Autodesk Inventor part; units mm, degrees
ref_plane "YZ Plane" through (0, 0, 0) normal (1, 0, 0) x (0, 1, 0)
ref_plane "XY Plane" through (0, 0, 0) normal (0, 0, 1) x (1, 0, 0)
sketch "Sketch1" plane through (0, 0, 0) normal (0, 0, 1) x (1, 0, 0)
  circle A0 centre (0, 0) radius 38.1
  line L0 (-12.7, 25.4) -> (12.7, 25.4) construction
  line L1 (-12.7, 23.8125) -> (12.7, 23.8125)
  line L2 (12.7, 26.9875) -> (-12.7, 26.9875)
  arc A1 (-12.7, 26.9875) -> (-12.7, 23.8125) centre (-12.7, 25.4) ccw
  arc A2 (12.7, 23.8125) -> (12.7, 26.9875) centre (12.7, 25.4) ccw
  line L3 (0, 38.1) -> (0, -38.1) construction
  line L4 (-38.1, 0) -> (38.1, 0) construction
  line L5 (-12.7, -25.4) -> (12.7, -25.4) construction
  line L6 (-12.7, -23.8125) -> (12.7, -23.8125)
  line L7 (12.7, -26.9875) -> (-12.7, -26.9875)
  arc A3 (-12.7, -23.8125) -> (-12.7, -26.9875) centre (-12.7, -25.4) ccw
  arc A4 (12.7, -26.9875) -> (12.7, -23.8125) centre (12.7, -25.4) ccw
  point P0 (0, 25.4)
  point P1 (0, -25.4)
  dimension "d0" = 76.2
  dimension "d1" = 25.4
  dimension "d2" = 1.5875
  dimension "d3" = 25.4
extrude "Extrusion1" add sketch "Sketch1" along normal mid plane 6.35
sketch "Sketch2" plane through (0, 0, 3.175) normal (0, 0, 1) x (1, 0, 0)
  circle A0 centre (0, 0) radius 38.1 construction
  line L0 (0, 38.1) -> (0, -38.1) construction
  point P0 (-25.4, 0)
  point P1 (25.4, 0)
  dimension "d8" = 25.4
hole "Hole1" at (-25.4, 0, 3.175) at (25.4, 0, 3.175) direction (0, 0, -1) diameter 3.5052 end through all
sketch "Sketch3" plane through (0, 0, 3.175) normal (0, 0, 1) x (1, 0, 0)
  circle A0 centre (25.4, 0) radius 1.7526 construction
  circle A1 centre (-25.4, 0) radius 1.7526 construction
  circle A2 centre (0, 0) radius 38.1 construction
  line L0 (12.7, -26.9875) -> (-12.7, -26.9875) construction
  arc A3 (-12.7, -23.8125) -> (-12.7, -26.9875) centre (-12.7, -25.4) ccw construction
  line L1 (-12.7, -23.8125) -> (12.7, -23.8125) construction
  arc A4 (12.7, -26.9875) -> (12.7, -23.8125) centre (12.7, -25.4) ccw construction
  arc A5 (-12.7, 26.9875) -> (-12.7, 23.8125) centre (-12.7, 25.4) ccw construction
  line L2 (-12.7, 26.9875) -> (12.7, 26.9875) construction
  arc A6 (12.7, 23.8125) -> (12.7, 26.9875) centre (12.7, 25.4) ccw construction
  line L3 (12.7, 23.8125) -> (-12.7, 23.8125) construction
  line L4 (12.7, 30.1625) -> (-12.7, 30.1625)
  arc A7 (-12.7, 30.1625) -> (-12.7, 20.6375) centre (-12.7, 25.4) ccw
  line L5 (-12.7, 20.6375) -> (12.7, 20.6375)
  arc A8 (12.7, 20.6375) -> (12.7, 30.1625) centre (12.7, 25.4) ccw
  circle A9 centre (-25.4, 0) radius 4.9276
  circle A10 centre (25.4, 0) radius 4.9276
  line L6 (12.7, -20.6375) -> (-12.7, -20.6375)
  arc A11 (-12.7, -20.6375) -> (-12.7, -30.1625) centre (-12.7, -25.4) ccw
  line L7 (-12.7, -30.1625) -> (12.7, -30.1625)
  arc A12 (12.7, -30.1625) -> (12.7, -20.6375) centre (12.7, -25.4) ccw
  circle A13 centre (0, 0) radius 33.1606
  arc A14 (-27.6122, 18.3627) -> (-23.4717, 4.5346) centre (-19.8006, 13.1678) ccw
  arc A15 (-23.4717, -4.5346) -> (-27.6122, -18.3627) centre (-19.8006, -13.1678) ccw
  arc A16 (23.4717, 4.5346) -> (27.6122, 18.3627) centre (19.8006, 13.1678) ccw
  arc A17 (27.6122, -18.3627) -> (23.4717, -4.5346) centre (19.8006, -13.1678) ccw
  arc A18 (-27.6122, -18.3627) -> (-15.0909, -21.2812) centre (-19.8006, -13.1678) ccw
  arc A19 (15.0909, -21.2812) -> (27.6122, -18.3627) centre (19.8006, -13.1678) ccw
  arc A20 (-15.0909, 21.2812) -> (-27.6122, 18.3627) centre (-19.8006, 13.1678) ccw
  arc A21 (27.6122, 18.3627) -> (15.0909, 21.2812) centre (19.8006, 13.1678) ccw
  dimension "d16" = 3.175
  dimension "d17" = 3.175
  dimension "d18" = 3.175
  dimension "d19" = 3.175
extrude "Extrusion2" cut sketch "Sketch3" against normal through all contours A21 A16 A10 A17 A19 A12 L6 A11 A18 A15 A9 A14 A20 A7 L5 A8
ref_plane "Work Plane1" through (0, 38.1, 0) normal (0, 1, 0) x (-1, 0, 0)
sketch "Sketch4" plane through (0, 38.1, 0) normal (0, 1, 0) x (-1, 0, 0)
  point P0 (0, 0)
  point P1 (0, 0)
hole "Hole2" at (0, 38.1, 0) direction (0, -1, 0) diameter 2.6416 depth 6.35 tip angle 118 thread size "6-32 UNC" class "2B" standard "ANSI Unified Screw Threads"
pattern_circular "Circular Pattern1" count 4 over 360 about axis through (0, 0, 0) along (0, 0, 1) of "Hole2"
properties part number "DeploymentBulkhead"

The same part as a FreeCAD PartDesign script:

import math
import FreeCAD as App
import Part
import Sketcher
from FreeCAD import Vector
Q = App.Units.Quantity

doc = App.newDocument("Part")
body = doc.addObject("PartDesign::Body", "Body")

# Sketch on XY plane
sketch1 = body.newObject("Sketcher::SketchObject", "Sketch")
sketch1.AttachmentSupport = (doc.getObject("XY_Plane"), [""])
sketch1.MapMode = "FlatFace"
sketch1.addGeometry([
    Part.Circle(Vector(0, 0, 0), Vector(0, 0, 1), 38.1),  # 0
    Part.ArcOfCircle(Part.Circle(Vector(-12.7, -25.4, 0), Vector(0, 0, 1), 1.6), math.radians(90), math.radians(270)),  # 1
    Part.LineSegment(Vector(-12.7, -23.8, 0), Vector(12.7, -23.8, 0)),  # 2
    Part.ArcOfCircle(Part.Circle(Vector(12.7, -25.4, 0), Vector(0, 0, 1), 1.6), math.radians(-90), math.radians(90)),  # 3
    Part.LineSegment(Vector(12.7, -27, 0), Vector(-12.7, -27, 0)),  # 4
    Part.LineSegment(Vector(12.7, 23.8, 0), Vector(-12.7, 23.8, 0)),  # 5
    Part.ArcOfCircle(Part.Circle(Vector(-12.7, 25.4, 0), Vector(0, 0, 1), 1.6), math.radians(90), math.radians(270)),  # 6
    Part.LineSegment(Vector(-12.7, 27, 0), Vector(12.7, 27, 0)),  # 7
    Part.ArcOfCircle(Part.Circle(Vector(12.7, 25.4, 0), Vector(0, 0, 1), 1.6), math.radians(-90), math.radians(90)),  # 8
], False)
sketch1.addConstraint([
    Sketcher.Constraint("Tangent", 1, 1, 2, 1),
    Sketcher.Constraint("Tangent", 2, 2, 3, 2),
    Sketcher.Constraint("Tangent", 3, 1, 4, 1),
    Sketcher.Constraint("Tangent", 4, 2, 1, 2),
    Sketcher.Constraint("Tangent", 5, 2, 6, 2),
    Sketcher.Constraint("Tangent", 6, 1, 7, 1),
    Sketcher.Constraint("Tangent", 7, 2, 8, 2),
    Sketcher.Constraint("Tangent", 8, 1, 5, 1),
    Sketcher.Constraint("Horizontal", 2),
    Sketcher.Constraint("Horizontal", 4),
    Sketcher.Constraint("Horizontal", 5),
    Sketcher.Constraint("Horizontal", 7),
    Sketcher.Constraint("Coincident", 0, 3, -1, 1),
    Sketcher.Constraint("Equal", 3, 6),
    Sketcher.Constraint("Symmetric", 3, 3, 6, 3, -1, 1),
    Sketcher.Constraint("Vertical", 1, 3, 6, 3),
    Sketcher.Constraint("Vertical", 3, 3, 8, 3),
    Sketcher.Constraint("Diameter", 0, Q("3 in")),
    Sketcher.Constraint("DistanceX", 2, 1, 2, 2, Q("1 in")),
    Sketcher.Constraint("DistanceY", 1, 3, -1, 1, Q("1 in")),
    Sketcher.Constraint("Radius", 1, Q("0.0625 in")),
])
pad1 = body.newObject("PartDesign::Pad", "Pad")
pad1.Profile = sketch1
pad1.Length = Q("0.25 in")
pad1.Midplane = True

# Sketch on XY plane
sketch2 = body.newObject("Sketcher::SketchObject", "Sketch001")
sketch2.AttachmentSupport = (doc.getObject("XY_Plane"), [""])
sketch2.MapMode = "FlatFace"
sketch2.AttachmentOffset = App.Placement(Vector(0, 0, 0.125 * 25.4), App.Rotation())
sketch2.addGeometry([
    Part.Circle(Vector(-25.4, 0, 0), Vector(0, 0, 1), 1.8),
    Part.Circle(Vector(25.4, 0, 0), Vector(0, 0, 1), 1.8),
], False)
sketch2.addConstraint([
    Sketcher.Constraint("Equal", 0, 1),
    Sketcher.Constraint("Symmetric", 0, 3, 1, 3, -1, 1),
    Sketcher.Constraint("PointOnObject", 0, 3, -1),
    Sketcher.Constraint("Diameter", 0, Q("0.138 in")),
    Sketcher.Constraint("DistanceX", 0, 3, -1, 1, Q("1 in")),
])
doc.recompute()
hole = body.newObject("PartDesign::Hole", "Hole")
hole.Profile = sketch2
hole.ThreadType = "None"
hole.Diameter = Q("0.138 in")
hole.DepthType = "ThroughAll"

# Sketch on XY plane
sketch3 = body.newObject("Sketcher::SketchObject", "Sketch002")
sketch3.AttachmentSupport = (doc.getObject("XY_Plane"), [""])
sketch3.MapMode = "FlatFace"
sketch3.AttachmentOffset = App.Placement(Vector(0, 0, 0.125 * 25.4), App.Rotation())
sketch3.addGeometry([
    Part.ArcOfCircle(Part.Circle(Vector(19.8, 13.2, 0), Vector(0, 0, 1), 9.4), math.radians(34), math.radians(120)),  # 0
    Part.ArcOfCircle(Part.Circle(Vector(12.7, 25.4, 0), Vector(0, 0, 1), 4.8), math.radians(-90), math.radians(-60)),  # 1
    Part.LineSegment(Vector(12.7, 20.6, 0), Vector(-12.7, 20.6, 0)),  # 2
    Part.ArcOfCircle(Part.Circle(Vector(-12.7, 25.4, 0), Vector(0, 0, 1), 4.8), math.radians(-120), math.radians(-90)),  # 3
    Part.ArcOfCircle(Part.Circle(Vector(-19.8, 13.2, 0), Vector(0, 0, 1), 9.4), math.radians(60), math.radians(146)),  # 4
    Part.ArcOfCircle(Part.Circle(Vector(-19.8, 13.2, 0), Vector(0, 0, 1), 9.4), math.radians(146), math.radians(247)),  # 5
    Part.ArcOfCircle(Part.Circle(Vector(-25.4, 0, 0), Vector(0, 0, 1), 4.9), math.radians(-67), math.radians(67)),  # 6
    Part.ArcOfCircle(Part.Circle(Vector(-19.8, -13.2, 0), Vector(0, 0, 1), 9.4), math.radians(113), math.radians(214)),  # 7
    Part.ArcOfCircle(Part.Circle(Vector(-19.8, -13.2, 0), Vector(0, 0, 1), 9.4), math.radians(-146), math.radians(-60)),  # 8
    Part.ArcOfCircle(Part.Circle(Vector(-12.7, -25.4, 0), Vector(0, 0, 1), 4.8), math.radians(90), math.radians(120)),  # 9
    Part.LineSegment(Vector(-12.7, -20.6, 0), Vector(12.7, -20.6, 0)),  # 10
    Part.ArcOfCircle(Part.Circle(Vector(12.7, -25.4, 0), Vector(0, 0, 1), 4.8), math.radians(60), math.radians(90)),  # 11
    Part.ArcOfCircle(Part.Circle(Vector(19.8, -13.2, 0), Vector(0, 0, 1), 9.4), math.radians(-120), math.radians(-34)),  # 12
    Part.ArcOfCircle(Part.Circle(Vector(19.8, -13.2, 0), Vector(0, 0, 1), 9.4), math.radians(-34), math.radians(67)),  # 13
    Part.ArcOfCircle(Part.Circle(Vector(25.4, 0, 0), Vector(0, 0, 1), 4.9), math.radians(113), math.radians(247)),  # 14
    Part.ArcOfCircle(Part.Circle(Vector(19.8, 13.2, 0), Vector(0, 0, 1), 9.4), math.radians(-67), math.radians(34)),  # 15
], False)
sketch3.addConstraint([
    Sketcher.Constraint("Tangent", 0, 2, 1, 2),
    Sketcher.Constraint("Tangent", 1, 1, 2, 1),
    Sketcher.Constraint("Tangent", 2, 2, 3, 2),
    Sketcher.Constraint("Tangent", 3, 1, 4, 1),
    Sketcher.Constraint("Tangent", 4, 2, 5, 1),
    Sketcher.Constraint("Tangent", 5, 2, 6, 2),
    Sketcher.Constraint("Tangent", 6, 1, 7, 1),
    Sketcher.Constraint("Tangent", 7, 2, 8, 1),
    Sketcher.Constraint("Tangent", 8, 2, 9, 2),
    Sketcher.Constraint("Tangent", 9, 1, 10, 1),
    Sketcher.Constraint("Tangent", 10, 2, 11, 2),
    Sketcher.Constraint("Tangent", 11, 1, 12, 1),
    Sketcher.Constraint("Tangent", 12, 2, 13, 1),
    Sketcher.Constraint("Tangent", 13, 2, 14, 2),
    Sketcher.Constraint("Tangent", 14, 1, 15, 1),
    Sketcher.Constraint("Tangent", 15, 2, 0, 1),
    Sketcher.Constraint("Horizontal", 2),
    Sketcher.Constraint("Horizontal", 10),
    Sketcher.Constraint("Equal", 1, 3),
    Sketcher.Constraint("Equal", 0, 4),
    Sketcher.Constraint("Equal", 4, 5),
    Sketcher.Constraint("Equal", 5, 7),
    Sketcher.Constraint("Equal", 7, 8),
    Sketcher.Constraint("Equal", 3, 9),
    Sketcher.Constraint("Equal", 9, 11),
    Sketcher.Constraint("Equal", 8, 12),
    Sketcher.Constraint("Equal", 12, 13),
    Sketcher.Constraint("Equal", 6, 14),
    Sketcher.Constraint("Equal", 13, 15),
    Sketcher.Constraint("Symmetric", 0, 3, 7, 3, -1, 1),
    Sketcher.Constraint("Symmetric", 3, 3, 11, 3, -1, 1),
    Sketcher.Constraint("Symmetric", 4, 2, 12, 2, -1, 1),
    Sketcher.Constraint("Symmetric", 0, 3, 4, 3, -2),
    Sketcher.Constraint("Horizontal", 7, 2, 12, 2),
    Sketcher.Constraint("Horizontal", 4, 2, 15, 2),
    Sketcher.Constraint("DistanceX", 2, 2, 2, 1, Q("1 in")),
    Sketcher.Constraint("DistanceY", -1, 1, 1, 3, Q("1 in")),
    Sketcher.Constraint("DistanceX", 6, 3, -1, 1, Q("1 in")),
    Sketcher.Constraint("Radius", 1, Q("0.1875 in")),
    Sketcher.Constraint("Radius", 6, Q("0.194 in")),
    Sketcher.Constraint("Radius", 0, 9.3813),
    Sketcher.Constraint("DistanceX", 4, 2, -1, 1, Q("1.0871 in")),
])
pocket1 = body.newObject("PartDesign::Pocket", "Pocket")
pocket1.Profile = sketch3
pocket1.Type = "ThroughAll"

# Sketch on XZ plane
sketch4 = body.newObject("Sketcher::SketchObject", "Sketch003")
sketch4.AttachmentSupport = (doc.getObject("XZ_Plane"), [""])
sketch4.MapMode = "FlatFace"
sketch4.AttachmentOffset = App.Placement(Vector(0, 0, -1.5 * 25.4), App.Rotation())
sketch4.addGeometry(Part.Circle(Vector(0, 0, 0), Vector(0, 0, 1), 1.3), False)
sketch4.addConstraint([
    Sketcher.Constraint("Coincident", 0, 3, -1, 1),
    Sketcher.Constraint("Diameter", 0, Q("0.104 in")),
])
doc.recompute()
hole2 = body.newObject("PartDesign::Hole", "Hole001")
hole2.Profile = sketch4
hole2.ThreadType = "None"
hole2.Diameter = Q("0.104 in")
hole2.DepthType = "Dimension"
hole2.Depth = Q("0.25 in")
hole2.DrillPoint = "Angled"
hole2.DrillPointAngle = 118
hole2.Reversed = True
doc.recompute()

polarpattern = body.newObject("PartDesign::PolarPattern", "PolarPattern")
polarpattern.Originals = [hole2]
polarpattern.Axis = (doc.getObject("Z_Axis"), [""])
polarpattern.Angle = 360
polarpattern.Occurrences = 4
body.Tip = polarpattern

doc.recompute()
